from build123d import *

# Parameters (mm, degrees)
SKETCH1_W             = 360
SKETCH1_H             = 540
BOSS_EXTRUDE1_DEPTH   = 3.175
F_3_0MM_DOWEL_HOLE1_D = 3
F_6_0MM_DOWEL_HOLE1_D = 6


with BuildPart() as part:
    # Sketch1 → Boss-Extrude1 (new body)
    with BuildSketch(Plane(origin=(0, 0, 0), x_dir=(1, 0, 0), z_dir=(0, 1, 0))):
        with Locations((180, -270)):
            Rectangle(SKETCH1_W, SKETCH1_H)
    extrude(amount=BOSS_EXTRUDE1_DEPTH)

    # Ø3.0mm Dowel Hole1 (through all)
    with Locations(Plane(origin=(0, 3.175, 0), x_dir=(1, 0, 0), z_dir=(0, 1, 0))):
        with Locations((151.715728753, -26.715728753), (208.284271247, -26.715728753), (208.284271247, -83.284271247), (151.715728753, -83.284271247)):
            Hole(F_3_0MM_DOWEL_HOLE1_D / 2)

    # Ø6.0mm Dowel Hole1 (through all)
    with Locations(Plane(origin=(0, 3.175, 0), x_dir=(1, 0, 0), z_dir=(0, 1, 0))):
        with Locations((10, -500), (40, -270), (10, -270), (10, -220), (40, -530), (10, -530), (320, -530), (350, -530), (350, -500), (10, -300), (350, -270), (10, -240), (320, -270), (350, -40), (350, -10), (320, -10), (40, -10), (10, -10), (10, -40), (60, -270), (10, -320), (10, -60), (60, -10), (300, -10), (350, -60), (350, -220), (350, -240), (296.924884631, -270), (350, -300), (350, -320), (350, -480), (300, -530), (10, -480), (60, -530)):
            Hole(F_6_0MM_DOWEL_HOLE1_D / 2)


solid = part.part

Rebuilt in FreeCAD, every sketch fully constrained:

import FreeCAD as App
import Part
import Sketcher
Q = App.Units.Quantity


def add_polygon(sketch, points):
    """Adds a closed chain of lines whose ends are joined by coincident constraints."""
    first, n = sketch.GeometryCount, len(points)
    for a, b in zip(points, points[1:] + points[:1]):
        sketch.addGeometry(Part.LineSegment(App.Vector(*a, 0), App.Vector(*b, 0)), False)
    for i in range(n):
        sketch.addConstraint(Sketcher.Constraint("Coincident", first + i, 2, first + (i + 1) % n, 1))

doc = App.newDocument("Part")
body = doc.addObject("PartDesign::Body", "Body")

sketch1 = body.newObject("Sketcher::SketchObject", "Sketch")
sketch1.AttachmentSupport = (doc.getObject("XZ_Plane"), [""])
sketch1.MapMode = "FlatFace"
add_polygon(sketch1, [(0, 0), (0, 540), (360, 540), (360, 0)])
sketch1.addConstraint(Sketcher.Constraint("Vertical", 0))
sketch1.addConstraint(Sketcher.Constraint("Horizontal", 1))
sketch1.addConstraint(Sketcher.Constraint("Vertical", 2))
sketch1.addConstraint(Sketcher.Constraint("Horizontal", 3))
sketch1.addConstraint(Sketcher.Constraint("Coincident", 3, 2, -1, 1))
sketch1.addConstraint(Sketcher.Constraint("DistanceX", 1, 1, 1, 2, Q("360 mm")))
sketch1.addConstraint(Sketcher.Constraint("DistanceY", 0, 1, 0, 2, Q("540 mm")))
pad1 = body.newObject("PartDesign::Pad", "Pad")
pad1.Profile = sketch1
pad1.Length = 3.175
pad1.Reversed = True

sketch2 = body.newObject("Sketcher::SketchObject", "Sketch001")
sketch2.AttachmentSupport = (doc.getObject("XZ_Plane"), [""])
sketch2.MapMode = "FlatFace"
sketch2.AttachmentOffset = App.Placement(App.Vector(0, 0, -3.175), App.Rotation())
sketch2.addGeometry(Part.Circle(App.Vector(151.715729, 26.715729, 0), App.Vector(0, 0, 1), 1.5), False)
sketch2.addGeometry(Part.Circle(App.Vector(208.284271, 26.715729, 0), App.Vector(0, 0, 1), 1.5), False)
sketch2.addGeometry(Part.Circle(App.Vector(208.284271, 83.284271, 0), App.Vector(0, 0, 1), 1.5), False)
sketch2.addGeometry(Part.Circle(App.Vector(151.715729, 83.284271, 0), App.Vector(0, 0, 1), 1.5), False)
sketch2.addConstraint(Sketcher.Constraint("Equal", 0, 1))
sketch2.addConstraint(Sketcher.Constraint("Equal", 1, 2))
sketch2.addConstraint(Sketcher.Constraint("Equal", 2, 3))
sketch2.addConstraint(Sketcher.Constraint("Horizontal", 0, 3, 1, 3))
sketch2.addConstraint(Sketcher.Constraint("Horizontal", 2, 3, 3, 3))
sketch2.addConstraint(Sketcher.Constraint("Vertical", 1, 3, 2, 3))
sketch2.addConstraint(Sketcher.Constraint("Vertical", 0, 3, 3, 3))
sketch2.addConstraint(Sketcher.Constraint("Diameter", 0, Q("3 mm")))
sketch2.addConstraint(Sketcher.Constraint("DistanceX", -1, 1, 0, 3, Q("151.715729 mm")))
sketch2.addConstraint(Sketcher.Constraint("DistanceY", -1, 1, 0, 3, Q("26.715729 mm")))
sketch2.addConstraint(Sketcher.Constraint("DistanceX", -1, 1, 1, 3, Q("208.284271 mm")))
sketch2.addConstraint(Sketcher.Constraint("DistanceY", -1, 1, 2, 3, Q("83.284271 mm")))
doc.recompute()
hole = body.newObject("PartDesign::Hole", "Hole")
hole.Profile = sketch2
hole.ThreadType = "None"
hole.Diameter = 3
hole.DepthType = "ThroughAll"
hole.Reversed = True

sketch3 = body.newObject("Sketcher::SketchObject", "Sketch002")
sketch3.AttachmentSupport = (doc.getObject("XZ_Plane"), [""])
sketch3.MapMode = "FlatFace"
sketch3.AttachmentOffset = App.Placement(App.Vector(0, 0, -3.175), App.Rotation())
sketch3.addGeometry(Part.Circle(App.Vector(10, 500, 0), App.Vector(0, 0, 1), 3), False)
sketch3.addGeometry(Part.Circle(App.Vector(40, 270, 0), App.Vector(0, 0, 1), 3), False)
sketch3.addGeometry(Part.Circle(App.Vector(10, 270, 0), App.Vector(0, 0, 1), 3), False)
sketch3.addGeometry(Part.Circle(App.Vector(10, 220, 0), App.Vector(0, 0, 1), 3), False)
sketch3.addGeometry(Part.Circle(App.Vector(40, 530, 0), App.Vector(0, 0, 1), 3), False)
sketch3.addGeometry(Part.Circle(App.Vector(10, 530, 0), App.Vector(0, 0, 1), 3), False)
sketch3.addGeometry(Part.Circle(App.Vector(320, 530, 0), App.Vector(0, 0, 1), 3), False)
sketch3.addGeometry(Part.Circle(App.Vector(350, 530, 0), App.Vector(0, 0, 1), 3), False)
sketch3.addGeometry(Part.Circle(App.Vector(350, 500, 0), App.Vector(0, 0, 1), 3), False)
sketch3.addGeometry(Part.Circle(App.Vector(10, 300, 0), App.Vector(0, 0, 1), 3), False)
sketch3.addGeometry(Part.Circle(App.Vector(350, 270, 0), App.Vector(0, 0, 1), 3), False)
sketch3.addGeometry(Part.Circle(App.Vector(10, 240, 0), App.Vector(0, 0, 1), 3), False)
sketch3.addGeometry(Part.Circle(App.Vector(320, 270, 0), App.Vector(0, 0, 1), 3), False)
sketch3.addGeometry(Part.Circle(App.Vector(350, 40, 0), App.Vector(0, 0, 1), 3), False)
sketch3.addGeometry(Part.Circle(App.Vector(350, 10, 0), App.Vector(0, 0, 1), 3), False)
sketch3.addGeometry(Part.Circle(App.Vector(320, 10, 0), App.Vector(0, 0, 1), 3), False)
sketch3.addGeometry(Part.Circle(App.Vector(40, 10, 0), App.Vector(0, 0, 1), 3), False)
sketch3.addGeometry(Part.Circle(App.Vector(10, 10, 0), App.Vector(0, 0, 1), 3), False)
sketch3.addGeometry(Part.Circle(App.Vector(10, 40, 0), App.Vector(0, 0, 1), 3), False)
sketch3.addGeometry(Part.Circle(App.Vector(60, 270, 0), App.Vector(0, 0, 1), 3), False)
sketch3.addGeometry(Part.Circle(App.Vector(10, 320, 0), App.Vector(0, 0, 1), 3), False)
sketch3.addGeometry(Part.Circle(App.Vector(10, 60, 0), App.Vector(0, 0, 1), 3), False)
sketch3.addGeometry(Part.Circle(App.Vector(60, 10, 0), App.Vector(0, 0, 1), 3), False)
sketch3.addGeometry(Part.Circle(App.Vector(300, 10, 0), App.Vector(0, 0, 1), 3), False)
sketch3.addGeometry(Part.Circle(App.Vector(350, 60, 0), App.Vector(0, 0, 1), 3), False)
sketch3.addGeometry(Part.Circle(App.Vector(350, 220, 0), App.Vector(0, 0, 1), 3), False)
sketch3.addGeometry(Part.Circle(App.Vector(350, 240, 0), App.Vector(0, 0, 1), 3), False)
sketch3.addGeometry(Part.Circle(App.Vector(296.924885, 270, 0), App.Vector(0, 0, 1), 3), False)
sketch3.addGeometry(Part.Circle(App.Vector(350, 300, 0), App.Vector(0, 0, 1), 3), False)
sketch3.addGeometry(Part.Circle(App.Vector(350, 320, 0), App.Vector(0, 0, 1), 3), False)
sketch3.addGeometry(Part.Circle(App.Vector(350, 480, 0), App.Vector(0, 0, 1), 3), False)
sketch3.addGeometry(Part.Circle(App.Vector(300, 530, 0), App.Vector(0, 0, 1), 3), False)
sketch3.addGeometry(Part.Circle(App.Vector(10, 480, 0), App.Vector(0, 0, 1), 3), False)
sketch3.addGeometry(Part.Circle(App.Vector(60, 530, 0), App.Vector(0, 0, 1), 3), False)
sketch3.addConstraint(Sketcher.Constraint("Equal", 0, 1))
sketch3.addConstraint(Sketcher.Constraint("Equal", 1, 2))
sketch3.addConstraint(Sketcher.Constraint("Equal", 2, 3))
sketch3.addConstraint(Sketcher.Constraint("Equal", 3, 4))
sketch3.addConstraint(Sketcher.Constraint("Equal", 4, 5))
sketch3.addConstraint(Sketcher.Constraint("Equal", 5, 6))
sketch3.addConstraint(Sketcher.Constraint("Equal", 6, 7))
sketch3.addConstraint(Sketcher.Constraint("Equal", 7, 8))
sketch3.addConstraint(Sketcher.Constraint("Equal", 8, 9))
sketch3.addConstraint(Sketcher.Constraint("Equal", 9, 10))
sketch3.addConstraint(Sketcher.Constraint("Equal", 10, 11))
sketch3.addConstraint(Sketcher.Constraint("Equal", 11, 12))
sketch3.addConstraint(Sketcher.Constraint("Equal", 12, 13))
sketch3.addConstraint(Sketcher.Constraint("Equal", 13, 14))
sketch3.addConstraint(Sketcher.Constraint("Equal", 14, 15))
sketch3.addConstraint(Sketcher.Constraint("Equal", 15, 16))
sketch3.addConstraint(Sketcher.Constraint("Equal", 16, 17))
sketch3.addConstraint(Sketcher.Constraint("Equal", 17, 18))
sketch3.addConstraint(Sketcher.Constraint("Equal", 18, 19))
sketch3.addConstraint(Sketcher.Constraint("Equal", 19, 20))
sketch3.addConstraint(Sketcher.Constraint("Equal", 20, 21))
sketch3.addConstraint(Sketcher.Constraint("Equal", 21, 22))
sketch3.addConstraint(Sketcher.Constraint("Equal", 22, 23))
sketch3.addConstraint(Sketcher.Constraint("Equal", 23, 24))
sketch3.addConstraint(Sketcher.Constraint("Equal", 24, 25))
sketch3.addConstraint(Sketcher.Constraint("Equal", 25, 26))
sketch3.addConstraint(Sketcher.Constraint("Equal", 26, 27))
sketch3.addConstraint(Sketcher.Constraint("Equal", 27, 28))
sketch3.addConstraint(Sketcher.Constraint("Equal", 28, 29))
sketch3.addConstraint(Sketcher.Constraint("Equal", 29, 30))
sketch3.addConstraint(Sketcher.Constraint("Equal", 30, 31))
sketch3.addConstraint(Sketcher.Constraint("Equal", 31, 32))
sketch3.addConstraint(Sketcher.Constraint("Equal", 32, 33))
sketch3.addConstraint(Sketcher.Constraint("Horizontal", 1, 3, 2, 3))
sketch3.addConstraint(Sketcher.Constraint("Horizontal", 4, 3, 5, 3))
sketch3.addConstraint(Sketcher.Constraint("Horizontal", 5, 3, 6, 3))
sketch3.addConstraint(Sketcher.Constraint("Horizontal", 6, 3, 7, 3))
sketch3.addConstraint(Sketcher.Constraint("Horizontal", 0, 3, 8, 3))
sketch3.addConstraint(Sketcher.Constraint("Horizontal", 2, 3, 10, 3))
sketch3.addConstraint(Sketcher.Constraint("Horizontal", 10, 3, 12, 3))
sketch3.addConstraint(Sketcher.Constraint("Horizontal", 14, 3, 15, 3))
sketch3.addConstraint(Sketcher.Constraint("Horizontal", 15, 3, 16, 3))
sketch3.addConstraint(Sketcher.Constraint("Horizontal", 16, 3, 17, 3))
sketch3.addConstraint(Sketcher.Constraint("Horizontal", 13, 3, 18, 3))
sketch3.addConstraint(Sketcher.Constraint("Horizontal", 12, 3, 19, 3))
sketch3.addConstraint(Sketcher.Constraint("Horizontal", 17, 3, 22, 3))
sketch3.addConstraint(Sketcher.Constraint("Horizontal", 22, 3, 23, 3))
sketch3.addConstraint(Sketcher.Constraint("Horizontal", 21, 3, 24, 3))
sketch3.addConstraint(Sketcher.Constraint("Horizontal", 3, 3, 25, 3))
sketch3.addConstraint(Sketcher.Constraint("Horizontal", 11, 3, 26, 3))
sketch3.addConstraint(Sketcher.Constraint("Horizontal", 19, 3, 27, 3))
sketch3.addConstraint(Sketcher.Constraint("Horizontal", 9, 3, 28, 3))
sketch3.addConstraint(Sketcher.Constraint("Horizontal", 20, 3, 29, 3))
sketch3.addConstraint(Sketcher.Constraint("Horizontal", 7, 3, 31, 3))
sketch3.addConstraint(Sketcher.Constraint("Horizontal", 30, 3, 32, 3))
sketch3.addConstraint(Sketcher.Constraint("Horizontal", 31, 3, 33, 3))
sketch3.addConstraint(Sketcher.Constraint("Vertical", 0, 3, 2, 3))
sketch3.addConstraint(Sketcher.Constraint("Vertical", 2, 3, 3, 3))
sketch3.addConstraint(Sketcher.Constraint("Vertical", 1, 3, 4, 3))
sketch3.addConstraint(Sketcher.Constraint("Vertical", 3, 3, 5, 3))
sketch3.addConstraint(Sketcher.Constraint("Vertical", 7, 3, 8, 3))
sketch3.addConstraint(Sketcher.Constraint("Vertical", 5, 3, 9, 3))
sketch3.addConstraint(Sketcher.Constraint("Vertical", 8, 3, 10, 3))
sketch3.addConstraint(Sketcher.Constraint("Vertical", 9, 3, 11, 3))
sketch3.addConstraint(Sketcher.Constraint("Vertical", 6, 3, 12, 3))
sketch3.addConstraint(Sketcher.Constraint("Vertical", 10, 3, 13, 3))
sketch3.addConstraint(Sketcher.Constraint("Vertical", 13, 3, 14, 3))
sketch3.addConstraint(Sketcher.Constraint("Vertical", 12, 3, 15, 3))
sketch3.addConstraint(Sketcher.Constraint("Vertical", 4, 3, 16, 3))
sketch3.addConstraint(Sketcher.Constraint("Vertical", 11, 3, 17, 3))
sketch3.addConstraint(Sketcher.Constraint("Vertical", 17, 3, 18, 3))
sketch3.addConstraint(Sketcher.Constraint("Vertical", 18, 3, 20, 3))
sketch3.addConstraint(Sketcher.Constraint("Vertical", 20, 3, 21, 3))
sketch3.addConstraint(Sketcher.Constraint("Vertical", 19, 3, 22, 3))
sketch3.addConstraint(Sketcher.Constraint("Vertical", 14, 3, 24, 3))
sketch3.addConstraint(Sketcher.Constraint("Vertical", 24, 3, 25, 3))
sketch3.addConstraint(Sketcher.Constraint("Vertical", 25, 3, 26, 3))
sketch3.addConstraint(Sketcher.Constraint("Vertical", 26, 3, 28, 3))
sketch3.addConstraint(Sketcher.Constraint("Vertical", 28, 3, 29, 3))
sketch3.addConstraint(Sketcher.Constraint("Vertical", 29, 3, 30, 3))
sketch3.addConstraint(Sketcher.Constraint("Vertical", 23, 3, 31, 3))
sketch3.addConstraint(Sketcher.Constraint("Vertical", 21, 3, 32, 3))
sketch3.addConstraint(Sketcher.Constraint("Vertical", 22, 3, 33, 3))
sketch3.addConstraint(Sketcher.Constraint("Diameter", 0, Q("6 mm")))
sketch3.addConstraint(Sketcher.Constraint("DistanceX", -1, 1, 0, 3, Q("10 mm")))
sketch3.addConstraint(Sketcher.Constraint("DistanceY", -1, 1, 0, 3, Q("500 mm")))
sketch3.addConstraint(Sketcher.Constraint("DistanceX", -1, 1, 1, 3, Q("40 mm")))
sketch3.addConstraint(Sketcher.Constraint("DistanceY", -1, 1, 1, 3, Q("270 mm")))
sketch3.addConstraint(Sketcher.Constraint("DistanceY", -1, 1, 3, 3, Q("220 mm")))
sketch3.addConstraint(Sketcher.Constraint("DistanceY", -1, 1, 4, 3, Q("530 mm")))
sketch3.addConstraint(Sketcher.Constraint("DistanceX", -1, 1, 6, 3, Q("320 mm")))
sketch3.addConstraint(Sketcher.Constraint("DistanceX", -1, 1, 7, 3, Q("350 mm")))
sketch3.addConstraint(Sketcher.Constraint("DistanceY", -1, 1, 9, 3, Q("300 mm")))
sketch3.addConstraint(Sketcher.Constraint("DistanceY", -1, 1, 11, 3, Q("240 mm")))
sketch3.addConstraint(Sketcher.Constraint("DistanceY", -1, 1, 13, 3, Q("40 mm")))
sketch3.addConstraint(Sketcher.Constraint("DistanceY", -1, 1, 14, 3, Q("10 mm")))
sketch3.addConstraint(Sketcher.Constraint("DistanceX", -1, 1, 19, 3, Q("60 mm")))
sketch3.addConstraint(Sketcher.Constraint("DistanceY", -1, 1, 20, 3, Q("320 mm")))
sketch3.addConstraint(Sketcher.Constraint("DistanceY", -1, 1, 21, 3, Q("60 mm")))
sketch3.addConstraint(Sketcher.Constraint("DistanceX", -1, 1, 23, 3, Q("300 mm")))
sketch3.addConstraint(Sketcher.Constraint("DistanceY", -1, 1, 30, 3, Q("480 mm")))
sketch3.addConstraint(Sketcher.Constraint("DistanceX", -1, 1, 27, 3, Q("296.924885 mm")))
doc.recompute()
hole2 = body.newObject("PartDesign::Hole", "Hole001")
hole2.Profile = sketch3
hole2.ThreadType = "None"
hole2.Diameter = 6
hole2.DepthType = "ThroughAll"
hole2.Reversed = True

doc.recompute()
